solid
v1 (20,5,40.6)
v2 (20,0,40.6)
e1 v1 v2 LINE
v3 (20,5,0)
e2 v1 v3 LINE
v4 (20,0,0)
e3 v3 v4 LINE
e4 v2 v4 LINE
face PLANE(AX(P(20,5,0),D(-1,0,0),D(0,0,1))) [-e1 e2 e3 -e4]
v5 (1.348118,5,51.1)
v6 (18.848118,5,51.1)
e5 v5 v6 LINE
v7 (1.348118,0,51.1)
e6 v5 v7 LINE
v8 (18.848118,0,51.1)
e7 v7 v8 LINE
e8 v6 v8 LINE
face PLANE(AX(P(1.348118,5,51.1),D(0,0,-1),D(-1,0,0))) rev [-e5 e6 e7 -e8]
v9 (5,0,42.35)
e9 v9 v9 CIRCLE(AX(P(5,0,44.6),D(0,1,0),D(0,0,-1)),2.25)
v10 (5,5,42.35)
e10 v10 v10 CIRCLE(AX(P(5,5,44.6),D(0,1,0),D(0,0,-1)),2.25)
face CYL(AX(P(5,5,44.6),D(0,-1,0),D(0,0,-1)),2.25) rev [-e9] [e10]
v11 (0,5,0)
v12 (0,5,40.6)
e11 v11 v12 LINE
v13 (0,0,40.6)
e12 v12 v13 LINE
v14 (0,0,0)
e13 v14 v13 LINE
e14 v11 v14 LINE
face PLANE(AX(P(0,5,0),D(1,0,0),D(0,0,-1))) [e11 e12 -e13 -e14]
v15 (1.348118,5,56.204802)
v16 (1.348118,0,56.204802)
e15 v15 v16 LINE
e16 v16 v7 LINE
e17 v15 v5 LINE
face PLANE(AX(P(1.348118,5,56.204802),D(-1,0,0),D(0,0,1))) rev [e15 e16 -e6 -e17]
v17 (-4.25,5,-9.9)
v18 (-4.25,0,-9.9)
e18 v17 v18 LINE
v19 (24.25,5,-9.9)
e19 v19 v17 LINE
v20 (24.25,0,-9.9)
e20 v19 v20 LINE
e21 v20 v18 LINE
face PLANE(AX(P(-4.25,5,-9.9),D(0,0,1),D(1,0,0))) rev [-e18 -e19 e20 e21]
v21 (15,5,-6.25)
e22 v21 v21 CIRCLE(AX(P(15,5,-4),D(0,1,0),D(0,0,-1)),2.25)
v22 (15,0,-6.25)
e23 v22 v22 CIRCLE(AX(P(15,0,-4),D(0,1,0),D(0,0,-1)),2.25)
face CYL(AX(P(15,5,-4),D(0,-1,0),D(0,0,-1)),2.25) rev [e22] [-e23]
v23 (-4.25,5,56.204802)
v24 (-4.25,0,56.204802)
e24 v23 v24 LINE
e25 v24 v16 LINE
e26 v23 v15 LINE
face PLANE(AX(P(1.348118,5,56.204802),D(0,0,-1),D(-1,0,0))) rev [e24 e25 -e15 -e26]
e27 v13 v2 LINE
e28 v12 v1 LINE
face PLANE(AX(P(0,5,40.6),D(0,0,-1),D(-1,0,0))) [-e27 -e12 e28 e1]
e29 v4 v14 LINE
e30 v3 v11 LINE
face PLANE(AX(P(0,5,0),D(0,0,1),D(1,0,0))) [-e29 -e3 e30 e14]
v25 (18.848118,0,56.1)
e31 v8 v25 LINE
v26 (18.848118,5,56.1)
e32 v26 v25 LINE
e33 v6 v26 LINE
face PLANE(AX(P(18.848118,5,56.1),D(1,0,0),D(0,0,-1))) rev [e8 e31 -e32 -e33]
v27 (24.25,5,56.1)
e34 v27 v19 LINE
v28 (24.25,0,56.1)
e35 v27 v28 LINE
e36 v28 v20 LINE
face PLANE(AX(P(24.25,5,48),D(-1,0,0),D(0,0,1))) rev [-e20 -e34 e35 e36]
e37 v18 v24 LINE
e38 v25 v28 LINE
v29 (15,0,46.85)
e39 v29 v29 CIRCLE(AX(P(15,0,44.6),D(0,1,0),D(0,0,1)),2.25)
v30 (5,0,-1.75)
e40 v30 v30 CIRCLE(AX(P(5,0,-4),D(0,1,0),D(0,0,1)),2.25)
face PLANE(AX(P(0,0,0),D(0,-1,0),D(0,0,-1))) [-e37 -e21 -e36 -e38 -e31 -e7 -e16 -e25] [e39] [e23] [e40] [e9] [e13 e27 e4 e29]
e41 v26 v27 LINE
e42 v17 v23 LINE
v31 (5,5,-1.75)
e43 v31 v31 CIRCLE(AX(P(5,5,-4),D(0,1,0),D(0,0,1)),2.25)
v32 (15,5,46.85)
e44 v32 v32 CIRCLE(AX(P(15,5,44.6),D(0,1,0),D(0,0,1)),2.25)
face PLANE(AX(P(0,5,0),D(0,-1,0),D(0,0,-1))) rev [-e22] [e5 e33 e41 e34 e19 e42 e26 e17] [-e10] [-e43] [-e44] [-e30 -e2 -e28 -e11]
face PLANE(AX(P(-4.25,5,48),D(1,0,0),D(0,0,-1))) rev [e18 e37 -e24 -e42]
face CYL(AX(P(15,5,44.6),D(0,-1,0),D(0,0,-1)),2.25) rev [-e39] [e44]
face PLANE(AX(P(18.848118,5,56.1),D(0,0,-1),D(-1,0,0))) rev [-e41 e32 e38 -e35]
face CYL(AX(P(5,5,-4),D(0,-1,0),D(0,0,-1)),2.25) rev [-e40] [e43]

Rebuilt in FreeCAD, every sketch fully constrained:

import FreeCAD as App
import Part
import Sketcher

doc = App.newDocument("Part")
body = doc.addObject("PartDesign::Body", "Body")

# Sketch on XZ plane
sketch1 = body.newObject("Sketcher::SketchObject", "Sketch")
sketch1.AttachmentSupport = (doc.getObject("XZ_Plane"), [""])
sketch1.MapMode = "FlatFace"
sketch1.addGeometry(Part.LineSegment(App.Vector(-4.25, -9.9, 0), App.Vector(-4.25, 56.204802, 0)), False)
sketch1.addGeometry(Part.LineSegment(App.Vector(-4.25, 56.204802, 0), App.Vector(1.348118, 56.204802, 0)), False)
sketch1.addGeometry(Part.LineSegment(App.Vector(1.348118, 56.204802, 0), App.Vector(1.348118, 51.1, 0)), False)
sketch1.addGeometry(Part.LineSegment(App.Vector(1.348118, 51.1, 0), App.Vector(18.848118, 51.1, 0)), False)
sketch1.addGeometry(Part.LineSegment(App.Vector(18.848118, 51.1, 0), App.Vector(18.848118, 56.1, 0)), False)
sketch1.addGeometry(Part.LineSegment(App.Vector(18.848118, 56.1, 0), App.Vector(24.25, 56.1, 0)), False)
sketch1.addGeometry(Part.LineSegment(App.Vector(24.25, 56.1, 0), App.Vector(24.25, -9.9, 0)), False)
sketch1.addGeometry(Part.LineSegment(App.Vector(24.25, -9.9, 0), App.Vector(-4.25, -9.9, 0)), False)
sketch1.addGeometry(Part.Circle(App.Vector(15, 44.6, 0), App.Vector(0, 0, 1), 2.25), False)
sketch1.addGeometry(Part.Circle(App.Vector(5, 44.6, 0), App.Vector(0, 0, 1), 2.25), False)
sketch1.addGeometry(Part.Circle(App.Vector(15, -4, 0), App.Vector(0, 0, 1), 2.25), False)
sketch1.addGeometry(Part.LineSegment(App.Vector(0, 40.6, 0), App.Vector(0, 0, 0)), False)
sketch1.addGeometry(Part.LineSegment(App.Vector(0, 0, 0), App.Vector(20, 0, 0)), False)
sketch1.addGeometry(Part.LineSegment(App.Vector(20, 0, 0), App.Vector(20, 40.6, 0)), False)
sketch1.addGeometry(Part.LineSegment(App.Vector(20, 40.6, 0), App.Vector(0, 40.6, 0)), False)
sketch1.addGeometry(Part.Circle(App.Vector(5, -4, 0), App.Vector(0, 0, 1), 2.25), False)
sketch1.addConstraint(Sketcher.Constraint("Coincident", 0, 2, 1, 1))
sketch1.addConstraint(Sketcher.Constraint("Coincident", 1, 2, 2, 1))
sketch1.addConstraint(Sketcher.Constraint("Coincident", 2, 2, 3, 1))
sketch1.addConstraint(Sketcher.Constraint("Coincident", 3, 2, 4, 1))
sketch1.addConstraint(Sketcher.Constraint("Coincident", 4, 2, 5, 1))
sketch1.addConstraint(Sketcher.Constraint("Coincident", 5, 2, 6, 1))
sketch1.addConstraint(Sketcher.Constraint("Coincident", 6, 2, 7, 1))
sketch1.addConstraint(Sketcher.Constraint("Coincident", 7, 2, 0, 1))
sketch1.addConstraint(Sketcher.Constraint("Coincident", 11, 2, 12, 1))
sketch1.addConstraint(Sketcher.Constraint("Coincident", 12, 2, 13, 1))
sketch1.addConstraint(Sketcher.Constraint("Coincident", 13, 2, 14, 1))
sketch1.addConstraint(Sketcher.Constraint("Coincident", 14, 2, 11, 1))
sketch1.addConstraint(Sketcher.Constraint("Vertical", 0))
sketch1.addConstraint(Sketcher.Constraint("Horizontal", 1))
sketch1.addConstraint(Sketcher.Constraint("Vertical", 2))
sketch1.addConstraint(Sketcher.Constraint("Horizontal", 3))
sketch1.addConstraint(Sketcher.Constraint("Vertical", 4))
sketch1.addConstraint(Sketcher.Constraint("Horizontal", 5))
sketch1.addConstraint(Sketcher.Constraint("Vertical", 6))
sketch1.addConstraint(Sketcher.Constraint("Horizontal", 7))
sketch1.addConstraint(Sketcher.Constraint("Vertical", 11))
sketch1.addConstraint(Sketcher.Constraint("Horizontal", 12))
sketch1.addConstraint(Sketcher.Constraint("Vertical", 13))
sketch1.addConstraint(Sketcher.Constraint("Horizontal", 14))
sketch1.addConstraint(Sketcher.Constraint("Coincident", 11, 2, -1, 1))
sketch1.addConstraint(Sketcher.Constraint("Equal", 8, 9))
sketch1.addConstraint(Sketcher.Constraint("Equal", 9, 10))
sketch1.addConstraint(Sketcher.Constraint("Equal", 10, 15))
sketch1.addConstraint(Sketcher.Constraint("Horizontal", 8, 3, 9, 3))
sketch1.addConstraint(Sketcher.Constraint("Horizontal", 10, 3, 15, 3))
sketch1.addConstraint(Sketcher.Constraint("Vertical", 8, 3, 10, 3))
sketch1.addConstraint(Sketcher.Constraint("Vertical", 9, 3, 15, 3))
sketch1.addConstraint(Sketcher.Constraint("Diameter", 8, 4.5))
sketch1.addConstraint(Sketcher.Constraint("DistanceX", 12, 1, 12, 2, 20.0))
sketch1.addConstraint(Sketcher.Constraint("DistanceY", 4, 1, 4, 2, 5.0))
sketch1.addConstraint(Sketcher.Constraint("DistanceY", 6, 2, 6, 1, 66.0))
sketch1.addConstraint(Sketcher.Constraint("DistanceX", 3, 1, 3, 2, 17.5))
sketch1.addConstraint(Sketcher.Constraint("DistanceX", 7, 2, 7, 1, 28.5))
sketch1.addConstraint(Sketcher.Constraint("DistanceY", 11, 2, 11, 1, 40.6))
sketch1.addConstraint(Sketcher.Constraint("DistanceX", -1, 1, 8, 3, 15.0))
sketch1.addConstraint(Sketcher.Constraint("DistanceX", -1, 1, 9, 3, 5.0))
sketch1.addConstraint(Sketcher.Constraint("DistanceY", 10, 3, -1, 1, 4.0))
sketch1.addConstraint(Sketcher.Constraint("DistanceY", 13, 2, 8, 3, 4.0))
sketch1.addConstraint(Sketcher.Constraint("DistanceY", -1, 1, 2, 2, 51.1))
sketch1.addConstraint(Sketcher.Constraint("DistanceX", 0, 2, -1, 1, 4.25))
sketch1.addConstraint(Sketcher.Constraint("DistanceX", 1, 1, 1, 2, 5.598118))
sketch1.addConstraint(Sketcher.Constraint("DistanceY", 0, 1, 0, 2, 66.104802))
pad1 = body.newObject("PartDesign::Pad", "Pad")
pad1.Profile = sketch1
pad1.Length = 5
pad1.Reversed = True

doc.recompute()
